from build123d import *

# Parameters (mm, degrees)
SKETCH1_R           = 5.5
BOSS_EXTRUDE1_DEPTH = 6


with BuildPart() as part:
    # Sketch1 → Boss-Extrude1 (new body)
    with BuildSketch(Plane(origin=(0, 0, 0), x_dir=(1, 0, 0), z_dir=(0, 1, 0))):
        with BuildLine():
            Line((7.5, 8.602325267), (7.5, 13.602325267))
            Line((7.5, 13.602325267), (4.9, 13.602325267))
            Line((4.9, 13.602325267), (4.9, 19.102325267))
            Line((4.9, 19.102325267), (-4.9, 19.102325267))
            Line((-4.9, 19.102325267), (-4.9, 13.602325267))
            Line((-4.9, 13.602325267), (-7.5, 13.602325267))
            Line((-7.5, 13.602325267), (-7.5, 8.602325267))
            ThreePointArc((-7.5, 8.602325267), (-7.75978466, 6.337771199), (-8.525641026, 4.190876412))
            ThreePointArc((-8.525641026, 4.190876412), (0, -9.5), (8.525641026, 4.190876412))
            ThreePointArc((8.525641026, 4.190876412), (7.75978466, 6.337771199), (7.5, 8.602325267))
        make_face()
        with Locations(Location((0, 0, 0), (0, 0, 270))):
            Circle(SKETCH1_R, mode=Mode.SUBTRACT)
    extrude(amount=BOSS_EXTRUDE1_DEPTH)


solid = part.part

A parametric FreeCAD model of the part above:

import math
import FreeCAD as App
import Part
import Sketcher
Q = App.Units.Quantity

doc = App.newDocument("Part")
body = doc.addObject("PartDesign::Body", "Body")

sketch1 = body.newObject("Sketcher::SketchObject", "Sketch")
sketch1.AttachmentSupport = (doc.getObject("XZ_Plane"), [""])
sketch1.MapMode = "FlatFace"
sketch1.addGeometry([
    Part.LineSegment(App.Vector(7.5, -8.6, 0), App.Vector(7.5, -13.6, 0)),
    Part.LineSegment(App.Vector(7.5, -13.6, 0), App.Vector(4.9, -13.6, 0)),
    Part.LineSegment(App.Vector(4.9, -13.6, 0), App.Vector(4.9, -19.1, 0)),
    Part.LineSegment(App.Vector(4.9, -19.1, 0), App.Vector(-4.9, -19.1, 0)),
    Part.LineSegment(App.Vector(-4.9, -19.1, 0), App.Vector(-4.9, -13.6, 0)),
    Part.LineSegment(App.Vector(-4.9, -13.6, 0), App.Vector(-7.5, -13.6, 0)),
    Part.LineSegment(App.Vector(-7.5, -13.6, 0), App.Vector(-7.5, -8.6, 0)),
    Part.ArcOfCircle(Part.Circle(App.Vector(-17.5, -8.6, 0), App.Vector(0, 0, 1), 10), math.radians(0), math.radians(26)),
    Part.ArcOfCircle(Part.Circle(App.Vector(0, 0, 0), App.Vector(0, 0, 1), 9.5), math.radians(-26), math.radians(206)),
    Part.ArcOfCircle(Part.Circle(App.Vector(17.5, -8.6, 0), App.Vector(0, 0, 1), 10), math.radians(154), math.radians(180)),
    Part.Circle(App.Vector(0, 0, 0), App.Vector(0, 0, 1), 5.5),
], False)
sketch1.addConstraint([
    Sketcher.Constraint("Coincident", 0, 2, 1, 1),
    Sketcher.Constraint("Coincident", 1, 2, 2, 1),
    Sketcher.Constraint("Coincident", 2, 2, 3, 1),
    Sketcher.Constraint("Coincident", 3, 2, 4, 1),
    Sketcher.Constraint("Coincident", 4, 2, 5, 1),
    Sketcher.Constraint("Coincident", 5, 2, 6, 1),
    Sketcher.Constraint("Tangent", 6, 2, 7, 1),
    Sketcher.Constraint("Tangent", 7, 2, 8, 2),
    Sketcher.Constraint("Tangent", 8, 1, 9, 1),
    Sketcher.Constraint("Tangent", 9, 2, 0, 1),
    Sketcher.Constraint("Vertical", 0),
    Sketcher.Constraint("Horizontal", 1),
    Sketcher.Constraint("Vertical", 2),
    Sketcher.Constraint("Horizontal", 3),
    Sketcher.Constraint("Vertical", 4),
    Sketcher.Constraint("Horizontal", 5),
    Sketcher.Constraint("Vertical", 6),
    Sketcher.Constraint("Coincident", 8, 3, -1, 1),
    Sketcher.Constraint("Coincident", 10, 3, -1, 1),
    Sketcher.Constraint("Equal", 7, 9),
    Sketcher.Constraint("Symmetric", 1, 2, 4, 2, -2),
    Sketcher.Constraint("Horizontal", 7, 3, 9, 3),
    Sketcher.Constraint("Diameter", 10, Q("11 mm")),
    Sketcher.Constraint("Radius", 7, Q("10 mm")),
    Sketcher.Constraint("Radius", 8, Q("9.5 mm")),
    Sketcher.Constraint("DistanceY", 0, 2, 0, 1, Q("5 mm")),
    Sketcher.Constraint("DistanceX", 1, 2, 1, 1, Q("2.6 mm")),
    Sketcher.Constraint("DistanceX", 3, 2, 3, 1, Q("9.8 mm")),
    Sketcher.Constraint("DistanceY", 2, 2, 2, 1, Q("5.5 mm")),
])
pad1 = body.newObject("PartDesign::Pad", "Pad")
pad1.Profile = sketch1
pad1.Length = 6
pad1.Reversed = True

doc.recompute()
